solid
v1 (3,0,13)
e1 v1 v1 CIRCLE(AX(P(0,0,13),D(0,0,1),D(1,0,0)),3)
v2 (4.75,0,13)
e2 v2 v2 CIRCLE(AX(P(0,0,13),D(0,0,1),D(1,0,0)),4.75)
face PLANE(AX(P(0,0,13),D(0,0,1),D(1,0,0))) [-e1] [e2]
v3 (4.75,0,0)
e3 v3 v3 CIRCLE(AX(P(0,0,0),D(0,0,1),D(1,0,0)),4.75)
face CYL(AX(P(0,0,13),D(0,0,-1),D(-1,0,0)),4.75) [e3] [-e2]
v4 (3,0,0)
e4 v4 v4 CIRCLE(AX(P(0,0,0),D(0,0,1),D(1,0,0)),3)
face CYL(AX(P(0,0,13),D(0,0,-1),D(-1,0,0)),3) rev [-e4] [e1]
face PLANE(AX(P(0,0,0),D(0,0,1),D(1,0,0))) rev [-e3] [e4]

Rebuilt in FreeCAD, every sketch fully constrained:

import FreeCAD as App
import Part
import Sketcher
from FreeCAD import Vector
Q = App.Units.Quantity

doc = App.newDocument("Part")
body = doc.addObject("PartDesign::Body", "Body")

# Sketch on XY plane
sketch1 = body.newObject("Sketcher::SketchObject", "Sketch")
sketch1.AttachmentSupport = (doc.getObject("XY_Plane"), [""])
sketch1.MapMode = "FlatFace"
sketch1.addGeometry(Part.Circle(Vector(0, 0, 0), Vector(0, 0, 1), 4.75), False)
sketch1.addGeometry(Part.Circle(Vector(0, 0, 0), Vector(0, 0, 1), 3), False)
sketch1.addConstraint(Sketcher.Constraint("Coincident", 0, 3, -1, 1))
sketch1.addConstraint(Sketcher.Constraint("Coincident", 1, 3, -1, 1))
sketch1.addConstraint(Sketcher.Constraint("Diameter", 1, Q("6 mm")))
sketch1.addConstraint(Sketcher.Constraint("Diameter", 0, Q("9.5 mm")))
pad1 = body.newObject("PartDesign::Pad", "Pad")
pad1.Profile = sketch1
pad1.Length = 13

doc.recompute()
